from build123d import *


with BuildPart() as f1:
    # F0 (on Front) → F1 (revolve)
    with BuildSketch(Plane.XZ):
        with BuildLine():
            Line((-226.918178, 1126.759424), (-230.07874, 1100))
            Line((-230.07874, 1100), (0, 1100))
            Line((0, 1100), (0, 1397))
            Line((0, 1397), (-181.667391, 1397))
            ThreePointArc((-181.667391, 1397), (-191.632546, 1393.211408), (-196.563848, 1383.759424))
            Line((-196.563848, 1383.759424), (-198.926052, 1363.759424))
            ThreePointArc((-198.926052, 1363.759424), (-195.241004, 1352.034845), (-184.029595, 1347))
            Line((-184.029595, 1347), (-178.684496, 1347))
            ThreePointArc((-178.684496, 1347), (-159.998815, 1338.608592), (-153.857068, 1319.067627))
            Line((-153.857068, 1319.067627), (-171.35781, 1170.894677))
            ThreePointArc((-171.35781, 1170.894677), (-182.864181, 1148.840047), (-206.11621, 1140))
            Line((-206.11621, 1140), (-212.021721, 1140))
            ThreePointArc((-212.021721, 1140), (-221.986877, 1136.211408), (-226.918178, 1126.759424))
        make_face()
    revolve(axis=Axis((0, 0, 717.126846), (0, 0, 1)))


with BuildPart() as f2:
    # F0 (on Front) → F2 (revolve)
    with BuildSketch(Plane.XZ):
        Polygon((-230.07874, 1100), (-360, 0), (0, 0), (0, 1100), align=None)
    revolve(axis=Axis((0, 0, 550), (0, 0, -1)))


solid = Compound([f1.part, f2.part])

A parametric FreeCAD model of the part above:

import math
import FreeCAD as App
import Part
import Sketcher

V = App.Vector
Q = App.Units.Quantity

doc = App.newDocument("Part")
params = doc.addObject("Spreadsheet::Sheet", "Params")
for row, (alias, value) in enumerate([
    ("sketch1_radius", "15.000002 mm"),
    ("sketch1_radius2", "15 mm"),
    ("sketch1_radius3", "25 mm"),
    ("sketch1_radius4", "35.000002 mm"),
    ("sketch1_height", "297 mm"),
    ("revolution_angle", "360 deg"),
    ("sketch2_width", "360 mm"),
    ("sketch2_height", "1100 mm"),
    ("revolution2_angle", "360 deg"),
], start=1):
    params.set(f"A{row}", alias)
    params.set(f"B{row}", "=" + value)
    params.setAlias(f"B{row}", alias)

body = doc.addObject("PartDesign::Body", "Body")

# Sketch on XZ plane
sketch1 = body.newObject("Sketcher::SketchObject", "Sketch")
sketch1.AttachmentSupport = (doc.getObject("XZ_Plane"), [""])
sketch1.MapMode = "FlatFace"
sketch1.addGeometry([
    Part.LineSegment(V(-226.918178, 1126.759424, 0), V(-230.07874, 1100, 0)),  # 0
    Part.LineSegment(V(-230.07874, 1100, 0), V(0, 1100, 0)),  # 1
    Part.LineSegment(V(0, 1100, 0), V(0, 1397, 0)),  # 2
    Part.LineSegment(V(0, 1397, 0), V(-181.667391, 1397, 0)),  # 3
    Part.ArcOfCircle(Part.Circle(V(-181.667389, 1381.999998, 0), V(0, 0, 1), 15.000002), math.radians(90.000006), math.radians(173.263983)),  # 4
    Part.LineSegment(V(-196.563848, 1383.759424, 0), V(-198.926052, 1363.759424, 0)),  # 5
    Part.ArcOfCircle(Part.Circle(V(-184.029595, 1362, 0), V(0, 0, 1), 15), math.radians(173.263988), math.radians(270.000001)),  # 6
    Part.LineSegment(V(-184.029595, 1347, 0), V(-178.684496, 1347, 0)),  # 7
    Part.ArcOfCircle(Part.Circle(V(-178.684496, 1322, 0), V(0, 0, 1), 25), math.radians(-6.736011), math.radians(90.000001)),  # 8
    Part.LineSegment(V(-153.857068, 1319.067627, 0), V(-171.35781, 1170.894677, 0)),  # 9
    Part.ArcOfCircle(Part.Circle(V(-206.116211, 1175.000002, 0), V(0, 0, 1), 35.000002), math.radians(-89.999999), math.radians(-6.736014)),  # 10
    Part.LineSegment(V(-206.11621, 1140, 0), V(-212.021721, 1140, 0)),  # 11
    Part.ArcOfCircle(Part.Circle(V(-212.021721, 1125, 0), V(0, 0, 1), 15), math.radians(89.999999), math.radians(173.263989)),  # 12
], False)
sketch1.addConstraint([
    Sketcher.Constraint("Coincident", 0, 2, 1, 1),
    Sketcher.Constraint("Coincident", 1, 2, 2, 1),
    Sketcher.Constraint("Coincident", 2, 2, 3, 1),
    Sketcher.Constraint("Tangent", 3, 2, 4, 1),
    Sketcher.Constraint("Tangent", 4, 2, 5, 1),
    Sketcher.Constraint("Tangent", 5, 2, 6, 1),
    Sketcher.Constraint("Tangent", 6, 2, 7, 1),
    Sketcher.Constraint("Tangent", 7, 2, 8, 2),
    Sketcher.Constraint("Tangent", 8, 1, 9, 1),
    Sketcher.Constraint("Tangent", 9, 2, 10, 2),
    Sketcher.Constraint("Tangent", 10, 1, 11, 1),
    Sketcher.Constraint("Tangent", 11, 2, 12, 1),
    Sketcher.Constraint("Tangent", 12, 2, 0, 1),
    Sketcher.Constraint("Horizontal", 1),
    Sketcher.Constraint("Vertical", 2),
    Sketcher.Constraint("Horizontal", 3),
    Sketcher.Constraint("Horizontal", 7),
    Sketcher.Constraint("Horizontal", 11),
    Sketcher.Constraint("Equal", 6, 12),
    Sketcher.Constraint("PointOnObject", 1, 2, -2),
    Sketcher.Constraint("Parallel", 0, 5),
    Sketcher.Constraint("Parallel", 5, 9),
    Sketcher.Constraint("Radius", 4, Q("15.000002 mm")),
    Sketcher.Constraint("Radius", 6, Q("15 mm")),
    Sketcher.Constraint("Radius", 8, Q("25 mm")),
    Sketcher.Constraint("Radius", 10, Q("35.000002 mm")),
    Sketcher.Constraint("DistanceY", 2, 1, 2, 2, Q("297 mm")),
    Sketcher.Constraint("DistanceY", -1, 1, 4, 3, Q("1381.999998 mm")),
    Sketcher.Constraint("DistanceY", -1, 1, 6, 3, Q("1362 mm")),
    Sketcher.Constraint("DistanceY", -1, 1, 10, 3, Q("1175.000002 mm")),
    Sketcher.Constraint("DistanceX", 7, 1, 7, 2, Q("5.345099 mm")),
    Sketcher.Constraint("DistanceX", 1, 1, 1, 2, Q("230.07874 mm")),
    Sketcher.Constraint("DistanceX", 3, 2, 3, 1, Q("181.667391 mm")),
    Sketcher.Constraint("DistanceX", 11, 2, 11, 1, Q("5.905511 mm")),
])
sketch1.setExpression("Constraints[22]", "Params.sketch1_radius")
sketch1.setExpression("Constraints[23]", "Params.sketch1_radius2")
sketch1.setExpression("Constraints[24]", "Params.sketch1_radius3")
sketch1.setExpression("Constraints[25]", "Params.sketch1_radius4")
sketch1.setExpression("Constraints[26]", "Params.sketch1_height")
revolution = body.newObject("PartDesign::Revolution", "Revolution")
revolution.Profile = sketch1
revolution.ReferenceAxis = (sketch1, ["V_Axis"])
revolution.setExpression("Angle", "Params.revolution_angle")
body2 = doc.addObject("PartDesign::Body", "Body001")

# Sketch on XZ plane
sketch2 = body2.newObject("Sketcher::SketchObject", "Sketch001")
sketch2.AttachmentSupport = (doc.getObject("XZ_Plane001"), [""])
sketch2.MapMode = "FlatFace"
sketch2.addGeometry([
    Part.LineSegment(V(-230.07874, 1100, 0), V(-360, 0, 0)),
    Part.LineSegment(V(-360, 0, 0), V(0, 0, 0)),
    Part.LineSegment(V(0, 0, 0), V(0, 1100, 0)),
    Part.LineSegment(V(0, 1100, 0), V(-230.07874, 1100, 0)),
], False)
sketch2.addConstraint([
    Sketcher.Constraint("Coincident", 0, 2, 1, 1),
    Sketcher.Constraint("Coincident", 1, 2, 2, 1),
    Sketcher.Constraint("Coincident", 2, 2, 3, 1),
    Sketcher.Constraint("Coincident", 3, 2, 0, 1),
    Sketcher.Constraint("Horizontal", 1),
    Sketcher.Constraint("Vertical", 2),
    Sketcher.Constraint("Horizontal", 3),
    Sketcher.Constraint("Coincident", 1, 2, -1, 1),
    Sketcher.Constraint("DistanceX", 1, 1, 1, 2, Q("360 mm")),
    Sketcher.Constraint("DistanceY", 2, 1, 2, 2, Q("1100 mm")),
    Sketcher.Constraint("DistanceX", 3, 2, 3, 1, Q("230.07874 mm")),
])
sketch2.setExpression("Constraints[8]", "Params.sketch2_width")
sketch2.setExpression("Constraints[9]", "Params.sketch2_height")
revolution2 = body2.newObject("PartDesign::Revolution", "Revolution001")
revolution2.Profile = sketch2
revolution2.ReferenceAxis = (sketch2, ["V_Axis"])
revolution2.setExpression("Angle", "Params.revolution2_angle")

doc.recompute()
